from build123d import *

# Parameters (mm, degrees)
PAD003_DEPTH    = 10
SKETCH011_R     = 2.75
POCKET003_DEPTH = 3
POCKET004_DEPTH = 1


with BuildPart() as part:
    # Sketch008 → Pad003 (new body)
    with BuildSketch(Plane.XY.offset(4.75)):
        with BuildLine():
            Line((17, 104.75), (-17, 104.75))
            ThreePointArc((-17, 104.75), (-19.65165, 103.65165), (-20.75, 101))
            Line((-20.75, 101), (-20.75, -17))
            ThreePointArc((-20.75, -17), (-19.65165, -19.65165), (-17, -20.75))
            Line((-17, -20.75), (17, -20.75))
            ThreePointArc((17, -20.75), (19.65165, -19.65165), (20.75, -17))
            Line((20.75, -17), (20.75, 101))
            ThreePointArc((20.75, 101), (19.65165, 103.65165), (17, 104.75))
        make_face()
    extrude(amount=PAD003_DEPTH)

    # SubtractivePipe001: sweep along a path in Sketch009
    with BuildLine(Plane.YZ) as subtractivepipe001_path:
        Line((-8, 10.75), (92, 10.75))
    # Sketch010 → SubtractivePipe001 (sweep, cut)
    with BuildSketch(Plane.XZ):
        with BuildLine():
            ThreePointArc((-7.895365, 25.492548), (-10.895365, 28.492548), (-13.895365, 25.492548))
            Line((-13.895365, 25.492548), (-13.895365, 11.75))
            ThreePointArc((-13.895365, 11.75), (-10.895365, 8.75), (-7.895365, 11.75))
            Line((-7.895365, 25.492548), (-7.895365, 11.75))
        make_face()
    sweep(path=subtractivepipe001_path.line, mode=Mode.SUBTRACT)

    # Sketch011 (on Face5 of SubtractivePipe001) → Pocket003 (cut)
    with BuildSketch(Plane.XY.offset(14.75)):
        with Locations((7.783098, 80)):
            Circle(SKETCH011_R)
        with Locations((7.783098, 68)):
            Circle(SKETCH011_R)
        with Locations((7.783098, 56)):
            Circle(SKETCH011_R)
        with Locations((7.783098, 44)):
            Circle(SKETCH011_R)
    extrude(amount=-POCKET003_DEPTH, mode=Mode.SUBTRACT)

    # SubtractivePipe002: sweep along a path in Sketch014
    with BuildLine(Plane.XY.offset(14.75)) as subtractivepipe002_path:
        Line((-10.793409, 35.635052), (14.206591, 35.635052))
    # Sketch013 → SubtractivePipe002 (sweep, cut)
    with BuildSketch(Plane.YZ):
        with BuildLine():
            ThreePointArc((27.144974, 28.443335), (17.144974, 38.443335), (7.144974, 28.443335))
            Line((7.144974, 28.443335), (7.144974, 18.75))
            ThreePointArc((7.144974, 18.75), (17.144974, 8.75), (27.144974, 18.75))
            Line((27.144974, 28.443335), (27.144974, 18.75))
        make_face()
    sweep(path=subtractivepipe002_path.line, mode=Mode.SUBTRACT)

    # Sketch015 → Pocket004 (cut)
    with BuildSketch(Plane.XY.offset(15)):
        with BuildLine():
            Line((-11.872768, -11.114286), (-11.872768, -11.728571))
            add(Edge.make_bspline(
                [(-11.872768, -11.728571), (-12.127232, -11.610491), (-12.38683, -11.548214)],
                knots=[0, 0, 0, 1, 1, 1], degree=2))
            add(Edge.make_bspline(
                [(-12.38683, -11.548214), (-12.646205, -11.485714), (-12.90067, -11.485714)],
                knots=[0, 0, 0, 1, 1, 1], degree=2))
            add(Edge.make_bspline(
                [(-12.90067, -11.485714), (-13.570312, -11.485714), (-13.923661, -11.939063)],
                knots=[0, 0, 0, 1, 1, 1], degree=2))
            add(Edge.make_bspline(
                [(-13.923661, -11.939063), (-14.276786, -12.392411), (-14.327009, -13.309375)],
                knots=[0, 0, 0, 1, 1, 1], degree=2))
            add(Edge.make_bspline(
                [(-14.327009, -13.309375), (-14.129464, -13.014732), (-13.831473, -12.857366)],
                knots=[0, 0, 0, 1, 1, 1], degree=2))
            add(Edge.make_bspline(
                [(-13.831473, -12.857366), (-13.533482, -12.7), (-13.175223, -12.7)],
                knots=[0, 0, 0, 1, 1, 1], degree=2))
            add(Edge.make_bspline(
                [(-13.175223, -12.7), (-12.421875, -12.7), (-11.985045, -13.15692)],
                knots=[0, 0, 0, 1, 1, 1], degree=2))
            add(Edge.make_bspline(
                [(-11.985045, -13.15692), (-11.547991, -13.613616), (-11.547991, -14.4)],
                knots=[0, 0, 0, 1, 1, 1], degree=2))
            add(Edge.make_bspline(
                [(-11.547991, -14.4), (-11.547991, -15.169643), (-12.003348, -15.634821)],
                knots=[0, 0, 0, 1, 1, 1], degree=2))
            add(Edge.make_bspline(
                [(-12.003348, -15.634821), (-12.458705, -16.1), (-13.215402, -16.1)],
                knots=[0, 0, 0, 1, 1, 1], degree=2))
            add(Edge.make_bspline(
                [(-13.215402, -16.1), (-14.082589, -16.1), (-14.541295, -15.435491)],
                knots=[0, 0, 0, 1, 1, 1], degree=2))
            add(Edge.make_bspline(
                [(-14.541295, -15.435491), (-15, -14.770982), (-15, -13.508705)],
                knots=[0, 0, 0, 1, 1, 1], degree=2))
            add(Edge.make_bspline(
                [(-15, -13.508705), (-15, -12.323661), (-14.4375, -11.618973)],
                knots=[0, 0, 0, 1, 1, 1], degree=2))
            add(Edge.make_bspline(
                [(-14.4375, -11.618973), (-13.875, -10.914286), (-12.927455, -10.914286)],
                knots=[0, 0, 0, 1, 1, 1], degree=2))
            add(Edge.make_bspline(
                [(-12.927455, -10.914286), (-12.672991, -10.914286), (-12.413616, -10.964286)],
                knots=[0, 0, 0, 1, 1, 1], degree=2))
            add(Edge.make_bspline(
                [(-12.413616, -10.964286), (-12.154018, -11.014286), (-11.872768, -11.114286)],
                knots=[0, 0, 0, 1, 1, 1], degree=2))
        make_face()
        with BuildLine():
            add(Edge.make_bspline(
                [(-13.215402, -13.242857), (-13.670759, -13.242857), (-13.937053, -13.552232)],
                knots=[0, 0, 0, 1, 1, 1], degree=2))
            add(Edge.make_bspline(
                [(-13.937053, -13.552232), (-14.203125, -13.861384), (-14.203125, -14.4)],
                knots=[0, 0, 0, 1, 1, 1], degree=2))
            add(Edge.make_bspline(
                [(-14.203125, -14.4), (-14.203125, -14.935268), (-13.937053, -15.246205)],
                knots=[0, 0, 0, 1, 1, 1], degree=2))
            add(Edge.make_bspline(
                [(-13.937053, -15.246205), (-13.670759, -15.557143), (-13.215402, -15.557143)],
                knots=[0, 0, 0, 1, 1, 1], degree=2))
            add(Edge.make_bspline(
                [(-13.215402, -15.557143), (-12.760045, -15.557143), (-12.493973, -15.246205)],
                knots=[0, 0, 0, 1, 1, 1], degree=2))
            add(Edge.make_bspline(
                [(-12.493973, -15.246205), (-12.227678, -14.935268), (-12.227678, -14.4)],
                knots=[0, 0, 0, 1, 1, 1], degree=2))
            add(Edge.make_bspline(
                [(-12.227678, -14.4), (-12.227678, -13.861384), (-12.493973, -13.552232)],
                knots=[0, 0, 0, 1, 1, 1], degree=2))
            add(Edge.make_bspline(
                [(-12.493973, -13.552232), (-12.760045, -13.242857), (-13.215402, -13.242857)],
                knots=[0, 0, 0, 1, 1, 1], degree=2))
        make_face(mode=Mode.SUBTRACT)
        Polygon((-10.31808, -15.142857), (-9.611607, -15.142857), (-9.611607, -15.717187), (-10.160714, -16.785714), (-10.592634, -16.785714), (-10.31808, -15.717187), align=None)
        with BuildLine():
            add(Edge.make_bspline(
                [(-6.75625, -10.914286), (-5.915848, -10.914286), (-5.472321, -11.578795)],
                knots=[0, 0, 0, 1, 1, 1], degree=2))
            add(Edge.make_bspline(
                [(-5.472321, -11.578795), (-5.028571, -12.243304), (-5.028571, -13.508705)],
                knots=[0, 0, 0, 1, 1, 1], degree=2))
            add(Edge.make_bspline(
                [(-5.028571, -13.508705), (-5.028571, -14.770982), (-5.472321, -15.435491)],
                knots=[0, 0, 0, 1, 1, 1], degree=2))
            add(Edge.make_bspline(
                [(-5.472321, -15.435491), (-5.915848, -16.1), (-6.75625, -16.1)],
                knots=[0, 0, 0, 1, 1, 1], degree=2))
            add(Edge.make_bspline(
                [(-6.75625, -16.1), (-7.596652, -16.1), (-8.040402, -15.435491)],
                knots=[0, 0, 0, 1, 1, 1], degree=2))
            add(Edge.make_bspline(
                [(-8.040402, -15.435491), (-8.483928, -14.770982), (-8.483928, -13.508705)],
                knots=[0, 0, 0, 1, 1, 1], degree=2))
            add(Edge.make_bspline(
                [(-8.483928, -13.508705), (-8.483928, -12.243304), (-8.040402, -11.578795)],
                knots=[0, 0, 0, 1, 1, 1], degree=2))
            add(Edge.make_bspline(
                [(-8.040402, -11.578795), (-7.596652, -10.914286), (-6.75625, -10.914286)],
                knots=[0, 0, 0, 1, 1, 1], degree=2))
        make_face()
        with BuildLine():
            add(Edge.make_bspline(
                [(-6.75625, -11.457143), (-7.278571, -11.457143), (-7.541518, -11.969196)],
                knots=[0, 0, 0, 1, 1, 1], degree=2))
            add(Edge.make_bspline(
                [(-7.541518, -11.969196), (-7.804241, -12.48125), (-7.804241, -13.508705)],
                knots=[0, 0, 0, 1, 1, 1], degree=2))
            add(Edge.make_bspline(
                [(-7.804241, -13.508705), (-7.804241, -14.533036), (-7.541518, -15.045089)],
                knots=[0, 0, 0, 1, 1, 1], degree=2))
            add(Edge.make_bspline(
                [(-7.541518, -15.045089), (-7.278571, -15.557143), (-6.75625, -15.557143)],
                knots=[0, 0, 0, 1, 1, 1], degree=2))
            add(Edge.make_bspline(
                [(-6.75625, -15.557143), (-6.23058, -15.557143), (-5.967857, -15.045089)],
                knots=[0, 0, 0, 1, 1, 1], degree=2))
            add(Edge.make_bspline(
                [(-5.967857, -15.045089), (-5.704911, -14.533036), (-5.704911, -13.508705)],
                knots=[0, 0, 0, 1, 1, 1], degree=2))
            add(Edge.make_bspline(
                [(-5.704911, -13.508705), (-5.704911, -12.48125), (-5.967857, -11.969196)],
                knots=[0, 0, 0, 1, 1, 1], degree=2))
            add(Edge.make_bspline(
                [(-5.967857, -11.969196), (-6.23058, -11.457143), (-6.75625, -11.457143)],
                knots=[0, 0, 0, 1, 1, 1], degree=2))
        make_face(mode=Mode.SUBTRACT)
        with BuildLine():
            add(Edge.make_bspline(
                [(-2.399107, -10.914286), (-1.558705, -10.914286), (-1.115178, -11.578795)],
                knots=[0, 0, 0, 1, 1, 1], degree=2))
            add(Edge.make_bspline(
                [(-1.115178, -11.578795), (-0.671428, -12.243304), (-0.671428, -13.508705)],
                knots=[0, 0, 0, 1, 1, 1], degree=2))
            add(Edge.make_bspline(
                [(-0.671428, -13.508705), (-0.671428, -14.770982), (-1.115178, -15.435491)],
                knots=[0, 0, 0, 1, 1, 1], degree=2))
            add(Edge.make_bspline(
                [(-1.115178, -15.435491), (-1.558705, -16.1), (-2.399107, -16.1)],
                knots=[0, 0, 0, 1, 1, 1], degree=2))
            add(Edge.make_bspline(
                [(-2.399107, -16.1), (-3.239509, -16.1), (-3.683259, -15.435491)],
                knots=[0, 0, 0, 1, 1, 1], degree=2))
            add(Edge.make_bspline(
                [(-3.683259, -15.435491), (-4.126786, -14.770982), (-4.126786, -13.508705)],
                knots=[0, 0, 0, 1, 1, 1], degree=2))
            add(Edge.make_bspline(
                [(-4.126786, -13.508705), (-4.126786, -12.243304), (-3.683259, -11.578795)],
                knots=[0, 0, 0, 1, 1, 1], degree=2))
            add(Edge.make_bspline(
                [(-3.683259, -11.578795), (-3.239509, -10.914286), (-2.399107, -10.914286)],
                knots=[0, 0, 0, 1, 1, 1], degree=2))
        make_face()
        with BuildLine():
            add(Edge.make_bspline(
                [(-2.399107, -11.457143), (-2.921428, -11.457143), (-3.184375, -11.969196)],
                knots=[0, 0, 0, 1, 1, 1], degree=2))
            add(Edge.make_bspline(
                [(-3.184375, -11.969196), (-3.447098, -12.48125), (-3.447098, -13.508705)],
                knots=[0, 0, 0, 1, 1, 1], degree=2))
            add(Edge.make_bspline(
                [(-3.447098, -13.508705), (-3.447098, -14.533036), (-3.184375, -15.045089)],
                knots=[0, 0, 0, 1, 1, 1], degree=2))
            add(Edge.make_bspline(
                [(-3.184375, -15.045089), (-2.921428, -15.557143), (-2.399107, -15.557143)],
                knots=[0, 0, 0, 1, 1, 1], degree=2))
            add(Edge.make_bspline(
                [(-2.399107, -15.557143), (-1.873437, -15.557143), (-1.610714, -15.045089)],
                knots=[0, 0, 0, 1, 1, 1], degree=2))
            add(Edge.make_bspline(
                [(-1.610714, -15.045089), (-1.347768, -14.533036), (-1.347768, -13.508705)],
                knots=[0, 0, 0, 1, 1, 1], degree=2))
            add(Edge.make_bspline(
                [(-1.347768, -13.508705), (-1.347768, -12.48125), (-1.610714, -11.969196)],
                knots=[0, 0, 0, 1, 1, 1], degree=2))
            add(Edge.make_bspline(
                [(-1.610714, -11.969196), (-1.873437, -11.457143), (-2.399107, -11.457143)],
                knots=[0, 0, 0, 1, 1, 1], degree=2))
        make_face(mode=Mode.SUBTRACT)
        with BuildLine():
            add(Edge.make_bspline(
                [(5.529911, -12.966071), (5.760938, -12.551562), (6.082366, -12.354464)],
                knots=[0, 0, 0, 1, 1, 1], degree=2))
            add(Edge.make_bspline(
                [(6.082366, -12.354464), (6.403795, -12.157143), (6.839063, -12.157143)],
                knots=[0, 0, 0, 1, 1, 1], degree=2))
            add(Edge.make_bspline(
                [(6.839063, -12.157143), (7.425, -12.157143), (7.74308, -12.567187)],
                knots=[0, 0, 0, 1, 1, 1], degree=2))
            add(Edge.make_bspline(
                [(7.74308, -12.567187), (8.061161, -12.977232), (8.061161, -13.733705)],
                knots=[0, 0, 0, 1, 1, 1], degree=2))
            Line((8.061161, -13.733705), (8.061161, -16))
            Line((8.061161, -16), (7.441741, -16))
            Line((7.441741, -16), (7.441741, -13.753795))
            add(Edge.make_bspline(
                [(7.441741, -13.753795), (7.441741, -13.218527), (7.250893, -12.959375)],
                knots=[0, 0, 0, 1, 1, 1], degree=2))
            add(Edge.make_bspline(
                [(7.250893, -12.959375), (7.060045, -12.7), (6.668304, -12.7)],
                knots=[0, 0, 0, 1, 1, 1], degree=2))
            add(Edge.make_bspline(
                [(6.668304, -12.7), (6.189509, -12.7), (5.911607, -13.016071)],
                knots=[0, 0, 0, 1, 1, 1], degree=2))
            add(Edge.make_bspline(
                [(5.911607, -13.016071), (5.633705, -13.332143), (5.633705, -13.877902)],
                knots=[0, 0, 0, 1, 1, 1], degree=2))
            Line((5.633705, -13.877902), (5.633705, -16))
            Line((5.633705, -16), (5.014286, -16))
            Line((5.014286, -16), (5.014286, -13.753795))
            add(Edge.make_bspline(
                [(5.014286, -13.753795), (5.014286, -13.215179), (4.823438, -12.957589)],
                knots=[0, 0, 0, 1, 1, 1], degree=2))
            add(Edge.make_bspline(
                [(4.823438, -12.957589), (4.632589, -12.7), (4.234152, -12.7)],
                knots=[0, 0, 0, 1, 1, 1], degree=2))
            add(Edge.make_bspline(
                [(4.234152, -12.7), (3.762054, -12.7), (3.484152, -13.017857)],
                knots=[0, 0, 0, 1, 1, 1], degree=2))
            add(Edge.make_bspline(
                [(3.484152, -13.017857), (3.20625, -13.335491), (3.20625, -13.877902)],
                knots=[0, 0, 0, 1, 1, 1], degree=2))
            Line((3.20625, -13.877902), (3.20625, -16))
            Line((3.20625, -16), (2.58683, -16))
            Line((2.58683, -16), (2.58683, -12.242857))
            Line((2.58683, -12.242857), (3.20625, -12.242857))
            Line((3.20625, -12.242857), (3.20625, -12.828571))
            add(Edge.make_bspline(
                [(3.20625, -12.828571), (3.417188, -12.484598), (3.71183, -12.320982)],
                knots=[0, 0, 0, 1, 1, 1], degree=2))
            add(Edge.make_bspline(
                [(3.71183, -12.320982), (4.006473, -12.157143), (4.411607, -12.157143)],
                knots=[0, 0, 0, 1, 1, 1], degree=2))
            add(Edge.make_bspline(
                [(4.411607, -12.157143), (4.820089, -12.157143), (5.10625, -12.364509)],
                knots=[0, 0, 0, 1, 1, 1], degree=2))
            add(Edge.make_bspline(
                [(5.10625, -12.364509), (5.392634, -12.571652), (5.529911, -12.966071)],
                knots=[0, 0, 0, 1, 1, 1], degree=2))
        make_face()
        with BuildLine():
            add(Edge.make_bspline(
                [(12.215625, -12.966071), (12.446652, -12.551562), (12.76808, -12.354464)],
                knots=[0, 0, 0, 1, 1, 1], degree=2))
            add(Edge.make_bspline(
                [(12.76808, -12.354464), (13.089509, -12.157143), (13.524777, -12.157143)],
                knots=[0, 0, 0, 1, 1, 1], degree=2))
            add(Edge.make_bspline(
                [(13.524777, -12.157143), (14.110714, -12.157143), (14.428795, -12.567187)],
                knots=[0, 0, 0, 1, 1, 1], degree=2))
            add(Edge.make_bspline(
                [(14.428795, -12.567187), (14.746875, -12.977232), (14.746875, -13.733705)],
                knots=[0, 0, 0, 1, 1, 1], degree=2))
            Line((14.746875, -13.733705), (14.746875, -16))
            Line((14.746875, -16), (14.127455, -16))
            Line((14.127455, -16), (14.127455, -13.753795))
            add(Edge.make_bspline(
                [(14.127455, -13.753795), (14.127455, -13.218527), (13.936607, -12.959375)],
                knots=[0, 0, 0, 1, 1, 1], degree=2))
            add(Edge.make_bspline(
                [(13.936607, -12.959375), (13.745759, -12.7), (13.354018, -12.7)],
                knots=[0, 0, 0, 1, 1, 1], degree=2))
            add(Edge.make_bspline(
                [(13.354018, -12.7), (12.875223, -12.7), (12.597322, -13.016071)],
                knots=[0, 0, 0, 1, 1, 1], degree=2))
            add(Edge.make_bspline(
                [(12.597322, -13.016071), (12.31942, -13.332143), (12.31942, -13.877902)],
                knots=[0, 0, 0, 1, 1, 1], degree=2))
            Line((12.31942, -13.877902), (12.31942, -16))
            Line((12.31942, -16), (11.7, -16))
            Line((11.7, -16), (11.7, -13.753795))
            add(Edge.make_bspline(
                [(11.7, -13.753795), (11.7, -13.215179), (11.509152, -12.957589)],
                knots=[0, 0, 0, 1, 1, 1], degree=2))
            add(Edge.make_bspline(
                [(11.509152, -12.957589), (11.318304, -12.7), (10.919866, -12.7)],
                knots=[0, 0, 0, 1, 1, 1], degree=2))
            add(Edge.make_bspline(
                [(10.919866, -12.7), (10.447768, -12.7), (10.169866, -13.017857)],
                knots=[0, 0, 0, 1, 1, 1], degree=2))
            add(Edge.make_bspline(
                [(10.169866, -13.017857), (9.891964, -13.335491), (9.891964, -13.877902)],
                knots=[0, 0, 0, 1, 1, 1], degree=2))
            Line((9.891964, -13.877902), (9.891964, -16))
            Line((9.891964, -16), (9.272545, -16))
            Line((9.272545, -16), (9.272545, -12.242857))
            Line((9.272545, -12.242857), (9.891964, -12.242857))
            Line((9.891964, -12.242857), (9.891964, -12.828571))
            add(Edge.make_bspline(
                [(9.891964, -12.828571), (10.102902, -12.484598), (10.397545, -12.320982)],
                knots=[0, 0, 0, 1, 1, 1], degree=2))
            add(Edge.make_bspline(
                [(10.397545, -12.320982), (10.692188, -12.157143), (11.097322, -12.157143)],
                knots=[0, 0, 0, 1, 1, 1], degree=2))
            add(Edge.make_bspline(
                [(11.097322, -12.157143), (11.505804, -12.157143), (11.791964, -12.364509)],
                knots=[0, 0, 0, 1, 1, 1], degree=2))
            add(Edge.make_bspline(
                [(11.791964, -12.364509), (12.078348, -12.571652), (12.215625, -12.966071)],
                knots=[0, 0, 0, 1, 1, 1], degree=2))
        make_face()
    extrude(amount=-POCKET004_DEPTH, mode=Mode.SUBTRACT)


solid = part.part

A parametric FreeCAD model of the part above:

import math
import FreeCAD as App
import Part
import Sketcher
from FreeCAD import Vector

doc = App.newDocument("Part")
body = doc.addObject("PartDesign::Body", "Body")

sketch1 = doc.addObject("Sketcher::SketchObject", "Sketch")
body.addObject(sketch1)
sketch1.AttachmentSupport = (doc.XY_Plane, [""])
sketch1.MapMode = "FlatFace"
sketch1.AttachmentOffset = App.Placement(Vector(0, 0, 4.75), App.Rotation())
sketch1.addGeometry(Part.LineSegment(Vector(17, 104.75, 0), Vector(-17, 104.75, 0)), False)
sketch1.addGeometry(Part.ArcOfCircle(Part.Circle(Vector(-16.999999, 100.999999, 0), Vector(0, 0, 1), 3.750001), math.radians(90.000022), math.radians(179.999978)), False)
sketch1.addGeometry(Part.LineSegment(Vector(-20.75, 101, 0), Vector(-20.75, -17, 0)), False)
sketch1.addGeometry(Part.ArcOfCircle(Part.Circle(Vector(-16.999999, -16.999999, 0), Vector(0, 0, 1), 3.750001), math.radians(-179.999978), math.radians(-90.000022)), False)
sketch1.addGeometry(Part.LineSegment(Vector(-17, -20.75, 0), Vector(17, -20.75, 0)), False)
sketch1.addGeometry(Part.ArcOfCircle(Part.Circle(Vector(16.999999, -16.999999, 0), Vector(0, 0, 1), 3.750001), math.radians(-89.999978), math.radians(-0.000022)), False)
sketch1.addGeometry(Part.LineSegment(Vector(20.75, -17, 0), Vector(20.75, 101, 0)), False)
sketch1.addGeometry(Part.ArcOfCircle(Part.Circle(Vector(16.999999, 100.999999, 0), Vector(0, 0, 1), 3.750001), math.radians(0.000022), math.radians(89.999978)), False)
sketch1.addConstraint(Sketcher.Constraint("Tangent", 0, 2, 1, 1))
sketch1.addConstraint(Sketcher.Constraint("Tangent", 1, 2, 2, 1))
sketch1.addConstraint(Sketcher.Constraint("Tangent", 2, 2, 3, 1))
sketch1.addConstraint(Sketcher.Constraint("Tangent", 3, 2, 4, 1))
sketch1.addConstraint(Sketcher.Constraint("Tangent", 4, 2, 5, 1))
sketch1.addConstraint(Sketcher.Constraint("Tangent", 5, 2, 6, 1))
sketch1.addConstraint(Sketcher.Constraint("Tangent", 6, 2, 7, 1))
sketch1.addConstraint(Sketcher.Constraint("Tangent", 7, 2, 0, 1))
sketch1.addConstraint(Sketcher.Constraint("Horizontal", 0))
sketch1.addConstraint(Sketcher.Constraint("Vertical", 2))
sketch1.addConstraint(Sketcher.Constraint("Horizontal", 4))
sketch1.addConstraint(Sketcher.Constraint("Vertical", 6))
sketch1.addConstraint(Sketcher.Constraint("Equal", 1, 3))
sketch1.addConstraint(Sketcher.Constraint("Equal", 3, 5))
sketch1.addConstraint(Sketcher.Constraint("Equal", 5, 7))
sketch1.addConstraint(Sketcher.Constraint("DistanceX", 0, 2, 0, 1, 34.0))
sketch1.addConstraint(Sketcher.Constraint("DistanceY", 2, 2, 2, 1, 118.0))
sketch1.addConstraint(Sketcher.Constraint("Radius", 1, 3.750001))
sketch1.addConstraint(Sketcher.Constraint("DistanceX", 1, 3, -1, 1, 16.999999))
sketch1.addConstraint(Sketcher.Constraint("DistanceY", -1, 1, 1, 3, 100.999999))
pad1 = doc.addObject("PartDesign::Pad", "Pad")
body.addObject(pad1)
pad1.Profile = sketch1
pad1.Length = 10

sketch2 = doc.addObject("Sketcher::SketchObject", "Sketch001")
body.addObject(sketch2)
sketch2.AttachmentSupport = (doc.XZ_Plane, [""])
sketch2.MapMode = "FlatFace"
sketch2.addGeometry(Part.ArcOfCircle(Part.Circle(Vector(-10.895365, 25.492548, 0), Vector(0, 0, 1), 3), math.radians(0), math.radians(180)), False)
sketch2.addGeometry(Part.LineSegment(Vector(-13.895365, 25.492548, 0), Vector(-13.895365, 11.75, 0)), False)
sketch2.addGeometry(Part.ArcOfCircle(Part.Circle(Vector(-10.895365, 11.75, 0), Vector(0, 0, 1), 3), math.radians(180), math.radians(360)), False)
sketch2.addGeometry(Part.LineSegment(Vector(-7.895365, 11.75, 0), Vector(-7.895365, 25.492548, 0)), False)
sketch2.addConstraint(Sketcher.Constraint("Tangent", 0, 2, 1, 1))
sketch2.addConstraint(Sketcher.Constraint("Tangent", 1, 2, 2, 1))
sketch2.addConstraint(Sketcher.Constraint("Tangent", 2, 2, 3, 1))
sketch2.addConstraint(Sketcher.Constraint("Tangent", 3, 2, 0, 1))
sketch2.addConstraint(Sketcher.Constraint("Vertical", 1))
sketch2.addConstraint(Sketcher.Constraint("Vertical", 3))
sketch2.addConstraint(Sketcher.Constraint("Radius", 0, 3.0))
sketch2.addConstraint(Sketcher.Constraint("DistanceY", -1, 1, 2, 3, 11.75))
sketch2.addConstraint(Sketcher.Constraint("DistanceY", 1, 2, 1, 1, 13.742548))
sketch2.addConstraint(Sketcher.Constraint("DistanceX", 0, 3, -1, 1, 10.895365))

sketch3 = doc.addObject("Sketcher::SketchObject", "Sketch002")
body.addObject(sketch3)
sketch3.AttachmentSupport = (doc.XY_Plane, [""])
sketch3.MapMode = "FlatFace"
sketch3.AttachmentOffset = App.Placement(Vector(0, 0, 10.75), App.Rotation())
sketch3.addGeometry(Part.LineSegment(Vector(0, -8, 0), Vector(0, 92, 0)), False)
sketch3.addConstraint(Sketcher.Constraint("Vertical", 0))
sketch3.addConstraint(Sketcher.Constraint("PointOnObject", 0, 1, -2))
sketch3.addConstraint(Sketcher.Constraint("DistanceY", 0, 1, 0, 2, 100.0))
sketch3.addConstraint(Sketcher.Constraint("DistanceY", 0, 1, -1, 1, 8.0))
doc.recompute()

subtractivepipe = doc.addObject("PartDesign::SubtractivePipe", "SubtractivePipe")
body.addObject(subtractivepipe)
subtractivepipe.Profile = sketch2
subtractivepipe.Spine = (sketch3, ["Edge1"])

sketch4 = doc.addObject("Sketcher::SketchObject", "Sketch003")
body.addObject(sketch4)
sketch4.AttachmentSupport = (doc.XY_Plane, [""])
sketch4.MapMode = "FlatFace"
sketch4.AttachmentOffset = App.Placement(Vector(0, 0, 14.75), App.Rotation())
sketch4.addGeometry(Part.Circle(Vector(7.783098, 80, 0), Vector(0, 0, 1), 2.75), False)
sketch4.addGeometry(Part.Circle(Vector(7.783098, 68, 0), Vector(0, 0, 1), 2.75), False)
sketch4.addGeometry(Part.Circle(Vector(7.783098, 56, 0), Vector(0, 0, 1), 2.75), False)
sketch4.addGeometry(Part.Circle(Vector(7.783098, 44, 0), Vector(0, 0, 1), 2.75), False)
sketch4.addConstraint(Sketcher.Constraint("Equal", 0, 1))
sketch4.addConstraint(Sketcher.Constraint("Equal", 1, 2))
sketch4.addConstraint(Sketcher.Constraint("Equal", 2, 3))
sketch4.addConstraint(Sketcher.Constraint("Vertical", 0, 3, 1, 3))
sketch4.addConstraint(Sketcher.Constraint("Vertical", 1, 3, 2, 3))
sketch4.addConstraint(Sketcher.Constraint("Vertical", 2, 3, 3, 3))
sketch4.addConstraint(Sketcher.Constraint("Diameter", 0, 5.5))
sketch4.addConstraint(Sketcher.Constraint("DistanceY", -1, 1, 0, 3, 80.0))
sketch4.addConstraint(Sketcher.Constraint("DistanceY", -1, 1, 1, 3, 68.0))
sketch4.addConstraint(Sketcher.Constraint("DistanceY", -1, 1, 2, 3, 56.0))
sketch4.addConstraint(Sketcher.Constraint("DistanceY", -1, 1, 3, 3, 44.0))
sketch4.addConstraint(Sketcher.Constraint("DistanceX", -1, 1, 0, 3, 7.783098))
pocket1 = doc.addObject("PartDesign::Pocket", "Pocket")
body.addObject(pocket1)
pocket1.Profile = sketch4
pocket1.Length = 3

sketch5 = doc.addObject("Sketcher::SketchObject", "Sketch004")
body.addObject(sketch5)
sketch5.AttachmentSupport = (doc.YZ_Plane, [""])
sketch5.MapMode = "FlatFace"
sketch5.addGeometry(Part.ArcOfCircle(Part.Circle(Vector(17.144974, 28.443335, 0), Vector(0, 0, 1), 10), math.radians(0), math.radians(180)), False)
sketch5.addGeometry(Part.LineSegment(Vector(7.144974, 28.443335, 0), Vector(7.144974, 18.75, 0)), False)
sketch5.addGeometry(Part.ArcOfCircle(Part.Circle(Vector(17.144974, 18.75, 0), Vector(0, 0, 1), 10), math.radians(180), math.radians(360)), False)
sketch5.addGeometry(Part.LineSegment(Vector(27.144974, 18.75, 0), Vector(27.144974, 28.443335, 0)), False)
sketch5.addConstraint(Sketcher.Constraint("Tangent", 0, 2, 1, 1))
sketch5.addConstraint(Sketcher.Constraint("Tangent", 1, 2, 2, 1))
sketch5.addConstraint(Sketcher.Constraint("Tangent", 2, 2, 3, 1))
sketch5.addConstraint(Sketcher.Constraint("Tangent", 3, 2, 0, 1))
sketch5.addConstraint(Sketcher.Constraint("Vertical", 1))
sketch5.addConstraint(Sketcher.Constraint("Vertical", 3))
sketch5.addConstraint(Sketcher.Constraint("Radius", 0, 10.0))
sketch5.addConstraint(Sketcher.Constraint("DistanceY", -1, 1, 2, 3, 18.75))
sketch5.addConstraint(Sketcher.Constraint("DistanceY", 1, 2, 1, 1, 9.693335))
sketch5.addConstraint(Sketcher.Constraint("DistanceX", -1, 1, 0, 3, 17.144974))

sketch6 = doc.addObject("Sketcher::SketchObject", "Sketch005")
body.addObject(sketch6)
sketch6.AttachmentSupport = (doc.XY_Plane, [""])
sketch6.MapMode = "FlatFace"
sketch6.AttachmentOffset = App.Placement(Vector(0, 0, 14.75), App.Rotation())
sketch6.addGeometry(Part.LineSegment(Vector(-10.793409, 35.635052, 0), Vector(14.206591, 35.635052, 0)), False)
sketch6.addConstraint(Sketcher.Constraint("Horizontal", 0))
sketch6.addConstraint(Sketcher.Constraint("DistanceX", 0, 1, 0, 2, 25.0))
sketch6.addConstraint(Sketcher.Constraint("DistanceX", 0, 1, -1, 1, 10.793409))
sketch6.addConstraint(Sketcher.Constraint("DistanceY", -1, 1, 0, 1, 35.635052))
doc.recompute()

subtractivepipe2 = doc.addObject("PartDesign::SubtractivePipe", "SubtractivePipe001")
body.addObject(subtractivepipe2)
subtractivepipe2.Profile = sketch5
subtractivepipe2.Spine = (sketch6, ["Edge1"])

sketch7 = doc.addObject("Sketcher::SketchObject", "Sketch006")
body.addObject(sketch7)
sketch7.AttachmentSupport = (doc.XY_Plane, [""])
sketch7.MapMode = "FlatFace"
sketch7.AttachmentOffset = App.Placement(Vector(0, 0, 15), App.Rotation())
sketch7.addGeometry(Part.LineSegment(Vector(-11.872768, -11.728571, 0), Vector(-11.872768, -11.114286, 0)), False)
sketch7.addGeometry(Part.BSplineCurve([Vector(-12.413616, -10.964286, 0), Vector(-12.154018, -11.014286, 0), Vector(-11.872768, -11.114286, 0)], [3, 3], [0, 1], False, 2, [1, 1, 1], False), False)
sketch7.addGeometry(Part.BSplineCurve([Vector(-14.4375, -11.618973, 0), Vector(-13.875, -10.914286, 0), Vector(-12.672991, -10.914286, 0), Vector(-12.413616, -10.964286, 0)], [3, 1, 3], [0, 1, 1.268550834], False, 2, [1, 1, 1, 1], False), False)
sketch7.addGeometry(Part.BSplineCurve([Vector(-14.541295, -15.435491, 0), Vector(-15, -14.770982, 0), Vector(-15, -12.323661, 0), Vector(-14.4375, -11.618973, 0)], [3, 1, 3], [0, 1, 1.938814539], False, 2, [1, 1, 1, 1], False), False)
sketch7.addGeometry(Part.BSplineCurve([Vector(-12.003348, -15.634821, 0), Vector(-12.458705, -16.1, 0), Vector(-14.082589, -16.1, 0), Vector(-14.541295, -15.435491, 0)], [3, 1, 3], [0, 1, 2.146016173], False, 2, [1, 1, 1, 1], False), False)
sketch7.addGeometry(Part.BSplineCurve([Vector(-11.985045, -13.15692, 0), Vector(-11.547991, -13.613616, 0), Vector(-11.547991, -15.169643, 0), Vector(-12.003348, -15.634821, 0)], [3, 1, 3], [0, 1, 1.978711418], False, 2, [1, 1, 1, 1], False), False)
sketch7.addGeometry(Part.BSplineCurve([Vector(-14.327009, -13.309375, 0), Vector(-14.129464, -13.014732, 0), Vector(-13.533482, -12.7, 0), Vector(-12.421875, -12.7, 0), Vector(-11.985045, -13.15692, 0)], [3, 1, 1, 3], [0, 1, 2, 4.102802721], False, 2, [1, 1, 1, 1, 1], False), False)
sketch7.addGeometry(Part.BSplineCurve([Vector(-13.923661, -11.939063, 0), Vector(-14.276786, -12.392411, 0), Vector(-14.327009, -13.309375, 0)], [3, 3], [0, 1], False, 2, [1, 1, 1], False), False)
sketch7.addGeometry(Part.BSplineCurve([Vector(-12.38683, -11.548214, 0), Vector(-12.646205, -11.485714, 0), Vector(-13.570312, -11.485714, 0), Vector(-13.923661, -11.939063, 0)], [3, 1, 3], [0, 1, 3.631568192], False, 2, [1, 1, 1, 1], False), False)
sketch7.addGeometry(Part.BSplineCurve([Vector(-11.872768, -11.728571, 0), Vector(-12.127232, -11.610491, 0), Vector(-12.38683, -11.548214, 0)], [3, 3], [0, 1], False, 2, [1, 1, 1], False), False)
sketch7.addGeometry(Part.BSplineCurve([Vector(-12.493973, -13.552232, 0), Vector(-12.760045, -13.242857, 0), Vector(-13.670759, -13.242857, 0), Vector(-13.937053, -13.552232, 0)], [3, 1, 3], [0, 1, 2], False, 2, [1, 1, 1, 1], False), False)
sketch7.addGeometry(Part.BSplineCurve([Vector(-12.493973, -15.246205, 0), Vector(-12.227678, -14.935268, 0), Vector(-12.227678, -13.861384, 0), Vector(-12.493973, -13.552232, 0)], [3, 1, 3], [0, 1, 2.006254811], False, 2, [1, 1, 1, 1], False), False)
sketch7.addGeometry(Part.BSplineCurve([Vector(-13.937053, -15.246205, 0), Vector(-13.670759, -15.557143, 0), Vector(-12.760045, -15.557143, 0), Vector(-12.493973, -15.246205, 0)], [3, 1, 3], [0, 1, 2], False, 2, [1, 1, 1, 1], False), False)
sketch7.addGeometry(Part.BSplineCurve([Vector(-13.937053, -13.552232, 0), Vector(-14.203125, -13.861384, 0), Vector(-14.203125, -14.935268, 0), Vector(-13.937053, -15.246205, 0)], [3, 1, 3], [0, 1, 1.993784069], False, 2, [1, 1, 1, 1], False), False)
sketch7.addGeometry(Part.LineSegment(Vector(-9.611607, -15.142857, 0), Vector(-10.31808, -15.142857, 0)), False)
sketch7.addGeometry(Part.LineSegment(Vector(-10.31808, -15.142857, 0), Vector(-10.31808, -15.717187, 0)), False)
sketch7.addGeometry(Part.LineSegment(Vector(-10.31808, -15.717187, 0), Vector(-10.592634, -16.785714, 0)), False)
sketch7.addGeometry(Part.LineSegment(Vector(-10.592634, -16.785714, 0), Vector(-10.160714, -16.785714, 0)), False)
sketch7.addGeometry(Part.LineSegment(Vector(-10.160714, -16.785714, 0), Vector(-9.611607, -15.717187, 0)), False)
sketch7.addGeometry(Part.LineSegment(Vector(-9.611607, -15.717187, 0), Vector(-9.611607, -15.142857, 0)), False)
sketch7.addGeometry(Part.BSplineCurve([Vector(-5.472321, -11.578795, 0), Vector(-5.028571, -12.243304, 0), Vector(-5.028571, -14.770982, 0), Vector(-5.472321, -15.435491, 0)], [3, 1, 3], [0, 1, 1.997531217], False, 2, [1, 1, 1, 1], False), False)
sketch7.addGeometry(Part.BSplineCurve([Vector(-8.040402, -11.578795, 0), Vector(-7.596652, -10.914286, 0), Vector(-5.915848, -10.914286, 0), Vector(-5.472321, -11.578795, 0)], [3, 1, 3], [0, 1, 2], False, 2, [1, 1, 1, 1], False), False)
sketch7.addGeometry(Part.BSplineCurve([Vector(-8.040402, -15.435491, 0), Vector(-8.483928, -14.770982, 0), Vector(-8.483928, -12.243304, 0), Vector(-8.040402, -11.578795, 0)], [3, 1, 3], [0, 1, 2.002474893], False, 2, [1, 1, 1, 1], False), False)
sketch7.addGeometry(Part.BSplineCurve([Vector(-5.472321, -15.435491, 0), Vector(-5.915848, -16.1, 0), Vector(-7.596652, -16.1, 0), Vector(-8.040402, -15.435491, 0)], [3, 1, 3], [0, 1, 2], False, 2, [1, 1, 1, 1], False), False)
sketch7.addGeometry(Part.BSplineCurve([Vector(-5.967857, -11.969196, 0), Vector(-6.23058, -11.457143, 0), Vector(-7.278571, -11.457143, 0), Vector(-7.541518, -11.969196, 0)], [3, 1, 3], [0, 1, 1.993629083], False, 2, [1, 1, 1, 1], False), False)
sketch7.addGeometry(Part.BSplineCurve([Vector(-5.967857, -15.045089, 0), Vector(-5.704911, -14.533036, 0), Vector(-5.704911, -12.48125, 0), Vector(-5.967857, -11.969196, 0)], [3, 1, 3], [0, 1, 2.003049795], False, 2, [1, 1, 1, 1], False), False)
sketch7.addGeometry(Part.BSplineCurve([Vector(-7.541518, -15.045089, 0), Vector(-7.278571, -15.557143, 0), Vector(-6.23058, -15.557143, 0), Vector(-5.967857, -15.045089, 0)], [3, 1, 3], [0, 1, 2.006411766], False, 2, [1, 1, 1, 1], False), False)
sketch7.addGeometry(Part.BSplineCurve([Vector(-7.541518, -11.969196, 0), Vector(-7.804241, -12.48125, 0), Vector(-7.804241, -14.533036, 0), Vector(-7.541518, -15.045089, 0)], [3, 1, 3], [0, 1, 1.996959478], False, 2, [1, 1, 1, 1], False), False)
sketch7.addGeometry(Part.BSplineCurve([Vector(-1.115178, -11.578795, 0), Vector(-0.671428, -12.243304, 0), Vector(-0.671428, -14.770982, 0), Vector(-1.115178, -15.435491, 0)], [3, 1, 3], [0, 1, 1.997531217], False, 2, [1, 1, 1, 1], False), False)
sketch7.addGeometry(Part.BSplineCurve([Vector(-3.683259, -11.578795, 0), Vector(-3.239509, -10.914286, 0), Vector(-1.558705, -10.914286, 0), Vector(-1.115178, -11.578795, 0)], [3, 1, 3], [0, 1, 2], False, 2, [1, 1, 1, 1], False), False)
sketch7.addGeometry(Part.BSplineCurve([Vector(-3.683259, -15.435491, 0), Vector(-4.126786, -14.770982, 0), Vector(-4.126786, -12.243304, 0), Vector(-3.683259, -11.578795, 0)], [3, 1, 3], [0, 1, 2.002474893], False, 2, [1, 1, 1, 1], False), False)
sketch7.addGeometry(Part.BSplineCurve([Vector(-1.115178, -15.435491, 0), Vector(-1.558705, -16.1, 0), Vector(-3.239509, -16.1, 0), Vector(-3.683259, -15.435491, 0)], [3, 1, 3], [0, 1, 2], False, 2, [1, 1, 1, 1], False), False)
sketch7.addGeometry(Part.BSplineCurve([Vector(-1.610714, -11.969196, 0), Vector(-1.873437, -11.457143, 0), Vector(-2.921428, -11.457143, 0), Vector(-3.184375, -11.969196, 0)], [3, 1, 3], [0, 1, 1.993629083], False, 2, [1, 1, 1, 1], False), False)
sketch7.addGeometry(Part.BSplineCurve([Vector(-1.610714, -15.045089, 0), Vector(-1.347768, -14.533036, 0), Vector(-1.347768, -12.48125, 0), Vector(-1.610714, -11.969196, 0)], [3, 1, 3], [0, 1, 2.003049795], False, 2, [1, 1, 1, 1], False), False)
sketch7.addGeometry(Part.BSplineCurve([Vector(-3.184375, -15.045089, 0), Vector(-2.921428, -15.557143, 0), Vector(-1.873437, -15.557143, 0), Vector(-1.610714, -15.045089, 0)], [3, 1, 3], [0, 1, 2.006411766], False, 2, [1, 1, 1, 1], False), False)
sketch7.addGeometry(Part.BSplineCurve([Vector(-3.184375, -11.969196, 0), Vector(-3.447098, -12.48125, 0), Vector(-3.447098, -14.533036, 0), Vector(-3.184375, -15.045089, 0)], [3, 1, 3], [0, 1, 1.996959478], False, 2, [1, 1, 1, 1], False), False)
sketch7.addGeometry(Part.BSplineCurve([Vector(5.529911, -12.966071, 0), Vector(5.760938, -12.551562, 0), Vector(6.082366, -12.354464, 0)], [3, 3], [0, 1], False, 2, [1, 1, 1], False), False)
sketch7.addGeometry(Part.BSplineCurve([Vector(5.10625, -12.364509, 0), Vector(5.392634, -12.571652, 0), Vector(5.529911, -12.966071, 0)], [3, 3], [0, 1], False, 2, [1, 1, 1], False), False)
sketch7.addGeometry(Part.BSplineCurve([Vector(3.71183, -12.320982, 0), Vector(4.006473, -12.157143, 0), Vector(4.820089, -12.157143, 0), Vector(5.10625, -12.364509, 0)], [3, 1, 3], [0, 1, 2.008263932], False, 2, [1, 1, 1, 1], False), False)
sketch7.addGeometry(Part.BSplineCurve([Vector(3.20625, -12.828571, 0), Vector(3.417188, -12.484598, 0), Vector(3.71183, -12.320982, 0)], [3, 3], [0, 1], False, 2, [1, 1, 1], False), False)
sketch7.addGeometry(Part.LineSegment(Vector(3.20625, -12.828571, 0), Vector(3.20625, -12.242857, 0)), False)
sketch7.addGeometry(Part.LineSegment(Vector(3.20625, -12.242857, 0), Vector(2.58683, -12.242857, 0)), False)
sketch7.addGeometry(Part.LineSegment(Vector(2.58683, -12.242857, 0), Vector(2.58683, -16, 0)), False)
sketch7.addGeometry(Part.LineSegment(Vector(2.58683, -16, 0), Vector(3.20625, -16, 0)), False)
sketch7.addGeometry(Part.LineSegment(Vector(3.20625, -16, 0), Vector(3.20625, -13.877902, 0)), False)
sketch7.addGeometry(Part.BSplineCurve([Vector(3.484152, -13.017857, 0), Vector(3.20625, -13.335491, 0), Vector(3.20625, -13.877902, 0)], [3, 3], [0, 1], False, 2, [1, 1, 1], False), False)
sketch7.addGeometry(Part.BSplineCurve([Vector(4.823438, -12.957589, 0), Vector(4.632589, -12.7, 0), Vector(3.762054, -12.7, 0), Vector(3.484152, -13.017857, 0)], [3, 1, 3], [0, 1, 2.184874899], False, 2, [1, 1, 1, 1], False), False)
sketch7.addGeometry(Part.BSplineCurve([Vector(5.014286, -13.753795, 0), Vector(5.014286, -13.215179, 0), Vector(4.823438, -12.957589, 0)], [3, 3], [0, 1], False, 2, [1, 1, 1], False), False)
sketch7.addGeometry(Part.LineSegment(Vector(5.014286, -13.753795, 0), Vector(5.014286, -16, 0)), False)
sketch7.addGeometry(Part.LineSegment(Vector(5.014286, -16, 0), Vector(5.633705, -16, 0)), False)
sketch7.addGeometry(Part.LineSegment(Vector(5.633705, -16, 0), Vector(5.633705, -13.877902, 0)), False)
sketch7.addGeometry(Part.BSplineCurve([Vector(5.911607, -13.016071, 0), Vector(5.633705, -13.332143, 0), Vector(5.633705, -13.877902, 0)], [3, 3], [0, 1], False, 2, [1, 1, 1], False), False)
sketch7.addGeometry(Part.BSplineCurve([Vector(7.250893, -12.959375, 0), Vector(7.060045, -12.7, 0), Vector(6.189509, -12.7, 0), Vector(5.911607, -13.016071, 0)], [3, 1, 3], [0, 1, 2.222223357], False, 2, [1, 1, 1, 1], False), False)
sketch7.addGeometry(Part.BSplineCurve([Vector(7.441741, -13.753795, 0), Vector(7.441741, -13.218527, 0), Vector(7.250893, -12.959375, 0)], [3, 3], [0, 1], False, 2, [1, 1, 1], False), False)
sketch7.addGeometry(Part.LineSegment(Vector(7.441741, -13.753795, 0), Vector(7.441741, -16, 0)), False)
sketch7.addGeometry(Part.LineSegment(Vector(7.441741, -16, 0), Vector(8.061161, -16, 0)), False)
sketch7.addGeometry(Part.LineSegment(Vector(8.061161, -16, 0), Vector(8.061161, -13.733705, 0)), False)
sketch7.addGeometry(Part.BSplineCurve([Vector(7.74308, -12.567187, 0), Vector(8.061161, -12.977232, 0), Vector(8.061161, -13.733705, 0)], [3, 3], [0, 1], False, 2, [1, 1, 1], False), False)
sketch7.addGeometry(Part.BSplineCurve([Vector(6.082366, -12.354464, 0), Vector(6.403795, -12.157143, 0), Vector(7.425, -12.157143, 0), Vector(7.74308, -12.567187, 0)], [3, 1, 3], [0, 1, 2.346152256], False, 2, [1, 1, 1, 1], False), False)
sketch7.addGeometry(Part.BSplineCurve([Vector(12.215625, -12.966071, 0), Vector(12.446652, -12.551562, 0), Vector(12.76808, -12.354464, 0)], [3, 3], [0, 1], False, 2, [1, 1, 1], False), False)
sketch7.addGeometry(Part.BSplineCurve([Vector(11.791964, -12.364509, 0), Vector(12.078348, -12.571652, 0), Vector(12.215625, -12.966071, 0)], [3, 3], [0, 1], False, 2, [1, 1, 1], False), False)
sketch7.addGeometry(Part.BSplineCurve([Vector(10.397545, -12.320982, 0), Vector(10.692188, -12.157143, 0), Vector(11.505804, -12.157143, 0), Vector(11.791964, -12.364509, 0)], [3, 1, 3], [0, 1, 2.008263932], False, 2, [1, 1, 1, 1], False), False)
sketch7.addGeometry(Part.BSplineCurve([Vector(9.891964, -12.828571, 0), Vector(10.102902, -12.484598, 0), Vector(10.397545, -12.320982, 0)], [3, 3], [0, 1], False, 2, [1, 1, 1], False), False)
sketch7.addGeometry(Part.LineSegment(Vector(9.891964, -12.828571, 0), Vector(9.891964, -12.242857, 0)), False)
sketch7.addGeometry(Part.LineSegment(Vector(9.891964, -12.242857, 0), Vector(9.272545, -12.242857, 0)), False)
sketch7.addGeometry(Part.LineSegment(Vector(9.272545, -12.242857, 0), Vector(9.272545, -16, 0)), False)
sketch7.addGeometry(Part.LineSegment(Vector(9.272545, -16, 0), Vector(9.891964, -16, 0)), False)
sketch7.addGeometry(Part.LineSegment(Vector(9.891964, -16, 0), Vector(9.891964, -13.877902, 0)), False)
sketch7.addGeometry(Part.BSplineCurve([Vector(10.169866, -13.017857, 0), Vector(9.891964, -13.335491, 0), Vector(9.891964, -13.877902, 0)], [3, 3], [0, 1], False, 2, [1, 1, 1], False), False)
sketch7.addGeometry(Part.BSplineCurve([Vector(11.509152, -12.957589, 0), Vector(11.318304, -12.7, 0), Vector(10.447768, -12.7, 0), Vector(10.169866, -13.017857, 0)], [3, 1, 3], [0, 1, 2.184871925], False, 2, [1, 1, 1, 1], False), False)
sketch7.addGeometry(Part.BSplineCurve([Vector(11.7, -13.753795, 0), Vector(11.7, -13.215179, 0), Vector(11.509152, -12.957589, 0)], [3, 3], [0, 1], False, 2, [1, 1, 1], False), False)
sketch7.addGeometry(Part.LineSegment(Vector(11.7, -13.753795, 0), Vector(11.7, -16, 0)), False)
sketch7.addGeometry(Part.LineSegment(Vector(11.7, -16, 0), Vector(12.31942, -16, 0)), False)
sketch7.addGeometry(Part.LineSegment(Vector(12.31942, -16, 0), Vector(12.31942, -13.877902, 0)), False)
sketch7.addGeometry(Part.BSplineCurve([Vector(12.597322, -13.016071, 0), Vector(12.31942, -13.332143, 0), Vector(12.31942, -13.877902, 0)], [3, 3], [0, 1], False, 2, [1, 1, 1], False), False)
sketch7.addGeometry(Part.BSplineCurve([Vector(13.936607, -12.959375, 0), Vector(13.745759, -12.7, 0), Vector(12.875223, -12.7, 0), Vector(12.597322, -13.016071, 0)], [3, 1, 3], [0, 1, 2.222223357], False, 2, [1, 1, 1, 1], False), False)
sketch7.addGeometry(Part.BSplineCurve([Vector(14.127455, -13.753795, 0), Vector(14.127455, -13.218527, 0), Vector(13.936607, -12.959375, 0)], [3, 3], [0, 1], False, 2, [1, 1, 1], False), False)
sketch7.addGeometry(Part.LineSegment(Vector(14.127455, -13.753795, 0), Vector(14.127455, -16, 0)), False)
sketch7.addGeometry(Part.LineSegment(Vector(14.127455, -16, 0), Vector(14.746875, -16, 0)), False)
sketch7.addGeometry(Part.LineSegment(Vector(14.746875, -16, 0), Vector(14.746875, -13.733705, 0)), False)
sketch7.addGeometry(Part.BSplineCurve([Vector(14.428795, -12.567187, 0), Vector(14.746875, -12.977232, 0), Vector(14.746875, -13.733705, 0)], [3, 3], [0, 1], False, 2, [1, 1, 1], False), False)
sketch7.addGeometry(Part.BSplineCurve([Vector(12.76808, -12.354464, 0), Vector(13.089509, -12.157143, 0), Vector(14.110714, -12.157143, 0), Vector(14.428795, -12.567187, 0)], [3, 1, 3], [0, 1, 2.346152256], False, 2, [1, 1, 1, 1], False), False)
sketch7.addConstraint(Sketcher.Constraint("Block", 1))
sketch7.addConstraint(Sketcher.Constraint("Block", 2))
sketch7.addConstraint(Sketcher.Constraint("Block", 3))
sketch7.addConstraint(Sketcher.Constraint("Block", 4))
sketch7.addConstraint(Sketcher.Constraint("Block", 5))
sketch7.addConstraint(Sketcher.Constraint("Block", 6))
sketch7.addConstraint(Sketcher.Constraint("Block", 7))
sketch7.addConstraint(Sketcher.Constraint("Block", 8))
sketch7.addConstraint(Sketcher.Constraint("Block", 9))
sketch7.addConstraint(Sketcher.Constraint("Block", 10))
sketch7.addConstraint(Sketcher.Constraint("Block", 11))
sketch7.addConstraint(Sketcher.Constraint("Block", 12))
sketch7.addConstraint(Sketcher.Constraint("Block", 13))
sketch7.addConstraint(Sketcher.Constraint("Block", 20))
sketch7.addConstraint(Sketcher.Constraint("Block", 21))
sketch7.addConstraint(Sketcher.Constraint("Block", 22))
sketch7.addConstraint(Sketcher.Constraint("Block", 23))
sketch7.addConstraint(Sketcher.Constraint("Block", 24))
sketch7.addConstraint(Sketcher.Constraint("Block", 25))
sketch7.addConstraint(Sketcher.Constraint("Block", 26))
sketch7.addConstraint(Sketcher.Constraint("Block", 27))
sketch7.addConstraint(Sketcher.Constraint("Block", 28))
sketch7.addConstraint(Sketcher.Constraint("Block", 29))
sketch7.addConstraint(Sketcher.Constraint("Block", 30))
sketch7.addConstraint(Sketcher.Constraint("Block", 31))
sketch7.addConstraint(Sketcher.Constraint("Block", 32))
sketch7.addConstraint(Sketcher.Constraint("Block", 33))
sketch7.addConstraint(Sketcher.Constraint("Block", 34))
sketch7.addConstraint(Sketcher.Constraint("Block", 35))
sketch7.addConstraint(Sketcher.Constraint("Block", 36))
sketch7.addConstraint(Sketcher.Constraint("Block", 37))
sketch7.addConstraint(Sketcher.Constraint("Block", 38))
sketch7.addConstraint(Sketcher.Constraint("Block", 39))
sketch7.addConstraint(Sketcher.Constraint("Block", 45))
sketch7.addConstraint(Sketcher.Constraint("Block", 46))
sketch7.addConstraint(Sketcher.Constraint("Block", 47))
sketch7.addConstraint(Sketcher.Constraint("Block", 51))
sketch7.addConstraint(Sketcher.Constraint("Block", 52))
sketch7.addConstraint(Sketcher.Constraint("Block", 53))
sketch7.addConstraint(Sketcher.Constraint("Block", 57))
sketch7.addConstraint(Sketcher.Constraint("Block", 58))
sketch7.addConstraint(Sketcher.Constraint("Block", 59))
sketch7.addConstraint(Sketcher.Constraint("Block", 60))
sketch7.addConstraint(Sketcher.Constraint("Block", 61))
sketch7.addConstraint(Sketcher.Constraint("Block", 62))
sketch7.addConstraint(Sketcher.Constraint("Block", 68))
sketch7.addConstraint(Sketcher.Constraint("Block", 69))
sketch7.addConstraint(Sketcher.Constraint("Block", 70))
sketch7.addConstraint(Sketcher.Constraint("Block", 74))
sketch7.addConstraint(Sketcher.Constraint("Block", 75))
sketch7.addConstraint(Sketcher.Constraint("Block", 76))
sketch7.addConstraint(Sketcher.Constraint("Block", 80))
sketch7.addConstraint(Sketcher.Constraint("Block", 81))
sketch7.addConstraint(Sketcher.Constraint("Coincident", 0, 2, 1, 2))
sketch7.addConstraint(Sketcher.Constraint("Coincident", 9, 1, 0, 1))
sketch7.addConstraint(Sketcher.Constraint("Coincident", 14, 2, 15, 1))
sketch7.addConstraint(Sketcher.Constraint("Coincident", 15, 2, 16, 1))
sketch7.addConstraint(Sketcher.Constraint("Coincident", 16, 2, 17, 1))
sketch7.addConstraint(Sketcher.Constraint("Coincident", 17, 2, 18, 1))
sketch7.addConstraint(Sketcher.Constraint("Coincident", 18, 2, 19, 1))
sketch7.addConstraint(Sketcher.Constraint("Coincident", 19, 2, 14, 1))
sketch7.addConstraint(Sketcher.Constraint("Coincident", 39, 1, 40, 1))
sketch7.addConstraint(Sketcher.Constraint("Coincident", 40, 2, 41, 1))
sketch7.addConstraint(Sketcher.Constraint("Coincident", 41, 2, 42, 1))
sketch7.addConstraint(Sketcher.Constraint("Coincident", 42, 2, 43, 1))
sketch7.addConstraint(Sketcher.Constraint("Coincident", 43, 2, 44, 1))
sketch7.addConstraint(Sketcher.Constraint("Coincident", 44, 2, 45, 2))
sketch7.addConstraint(Sketcher.Constraint("Coincident", 47, 1, 48, 1))
sketch7.addConstraint(Sketcher.Constraint("Coincident", 48, 2, 49, 1))
sketch7.addConstraint(Sketcher.Constraint("Coincident", 49, 2, 50, 1))
sketch7.addConstraint(Sketcher.Constraint("Coincident", 50, 2, 51, 2))
sketch7.addConstraint(Sketcher.Constraint("Coincident", 53, 1, 54, 1))
sketch7.addConstraint(Sketcher.Constraint("Coincident", 54, 2, 55, 1))
sketch7.addConstraint(Sketcher.Constraint("Coincident", 55, 2, 56, 1))
sketch7.addConstraint(Sketcher.Constraint("Coincident", 56, 2, 57, 2))
sketch7.addConstraint(Sketcher.Constraint("Coincident", 62, 1, 63, 1))
sketch7.addConstraint(Sketcher.Constraint("Coincident", 63, 2, 64, 1))
sketch7.addConstraint(Sketcher.Constraint("Coincident", 64, 2, 65, 1))
sketch7.addConstraint(Sketcher.Constraint("Coincident", 65, 2, 66, 1))
sketch7.addConstraint(Sketcher.Constraint("Coincident", 66, 2, 67, 1))
sketch7.addConstraint(Sketcher.Constraint("Coincident", 67, 2, 68, 2))
sketch7.addConstraint(Sketcher.Constraint("Coincident", 70, 1, 71, 1))
sketch7.addConstraint(Sketcher.Constraint("Coincident", 71, 2, 72, 1))
sketch7.addConstraint(Sketcher.Constraint("Coincident", 72, 2, 73, 1))
sketch7.addConstraint(Sketcher.Constraint("Coincident", 73, 2, 74, 2))
sketch7.addConstraint(Sketcher.Constraint("Coincident", 76, 1, 77, 1))
sketch7.addConstraint(Sketcher.Constraint("Coincident", 77, 2, 78, 1))
sketch7.addConstraint(Sketcher.Constraint("Coincident", 78, 2, 79, 1))
sketch7.addConstraint(Sketcher.Constraint("Coincident", 79, 2, 80, 2))
sketch7.addConstraint(Sketcher.Constraint("Horizontal", 14))
sketch7.addConstraint(Sketcher.Constraint("Vertical", 15))
sketch7.addConstraint(Sketcher.Constraint("Horizontal", 17))
sketch7.addConstraint(Sketcher.Constraint("Vertical", 19))
sketch7.addConstraint(Sketcher.Constraint("Vertical", 40))
sketch7.addConstraint(Sketcher.Constraint("Horizontal", 41))
sketch7.addConstraint(Sketcher.Constraint("Vertical", 42))
sketch7.addConstraint(Sketcher.Constraint("Horizontal", 43))
sketch7.addConstraint(Sketcher.Constraint("Vertical", 44))
sketch7.addConstraint(Sketcher.Constraint("Vertical", 48))
sketch7.addConstraint(Sketcher.Constraint("Horizontal", 49))
sketch7.addConstraint(Sketcher.Constraint("Vertical", 50))
sketch7.addConstraint(Sketcher.Constraint("Vertical", 54))
sketch7.addConstraint(Sketcher.Constraint("Horizontal", 55))
sketch7.addConstraint(Sketcher.Constraint("Vertical", 56))
sketch7.addConstraint(Sketcher.Constraint("Vertical", 63))
sketch7.addConstraint(Sketcher.Constraint("Horizontal", 64))
sketch7.addConstraint(Sketcher.Constraint("Vertical", 65))
sketch7.addConstraint(Sketcher.Constraint("Horizontal", 66))
sketch7.addConstraint(Sketcher.Constraint("Vertical", 67))
sketch7.addConstraint(Sketcher.Constraint("Vertical", 71))
sketch7.addConstraint(Sketcher.Constraint("Horizontal", 72))
sketch7.addConstraint(Sketcher.Constraint("Vertical", 73))
sketch7.addConstraint(Sketcher.Constraint("Vertical", 77))
sketch7.addConstraint(Sketcher.Constraint("Horizontal", 78))
sketch7.addConstraint(Sketcher.Constraint("Vertical", 79))
sketch7.addConstraint(Sketcher.Constraint("DistanceY", 42, 2, -1, 1, 16.0))
sketch7.addConstraint(Sketcher.Constraint("DistanceY", 48, 2, -1, 1, 16.0))
sketch7.addConstraint(Sketcher.Constraint("DistanceY", 54, 2, -1, 1, 16.0))
sketch7.addConstraint(Sketcher.Constraint("DistanceY", 65, 2, -1, 1, 16.0))
sketch7.addConstraint(Sketcher.Constraint("DistanceY", 71, 2, -1, 1, 16.0))
sketch7.addConstraint(Sketcher.Constraint("DistanceY", 77, 2, -1, 1, 16.0))
sketch7.addConstraint(Sketcher.Constraint("DistanceY", 19, 2, 40, 2, 2.9))
sketch7.addConstraint(Sketcher.Constraint("DistanceX", 17, 1, 17, 2, 0.43192))
sketch7.addConstraint(Sketcher.Constraint("DistanceX", 41, 2, 41, 1, 0.61942))
sketch7.addConstraint(Sketcher.Constraint("DistanceX", 64, 2, 64, 1, 0.619419))
sketch7.addConstraint(Sketcher.Constraint("DistanceY", 15, 2, 15, 1, 0.57433))
sketch7.addConstraint(Sketcher.Constraint("DistanceY", 19, 1, 19, 2, 0.57433))
sketch7.addConstraint(Sketcher.Constraint("DistanceY", 15, 2, 0, 2, 4.602901))
sketch7.addConstraint(Sketcher.Constraint("Distance", 18, 1.201361))
sketch7.addConstraint(Sketcher.Constraint("DistanceX", 14, 2, 14, 1, 0.706473))
sketch7.addConstraint(Sketcher.Constraint("DistanceY", 63, 1, 63, 2, 0.585714))
sketch7.addConstraint(Sketcher.Constraint("DistanceX", 14, 2, -1, 1, 10.31808))
sketch7.addConstraint(Sketcher.Constraint("Distance", 16, 1.103236))
pocket2 = doc.addObject("PartDesign::Pocket", "Pocket001")
body.addObject(pocket2)
pocket2.Profile = sketch7
pocket2.Length = 1

doc.recompute()
